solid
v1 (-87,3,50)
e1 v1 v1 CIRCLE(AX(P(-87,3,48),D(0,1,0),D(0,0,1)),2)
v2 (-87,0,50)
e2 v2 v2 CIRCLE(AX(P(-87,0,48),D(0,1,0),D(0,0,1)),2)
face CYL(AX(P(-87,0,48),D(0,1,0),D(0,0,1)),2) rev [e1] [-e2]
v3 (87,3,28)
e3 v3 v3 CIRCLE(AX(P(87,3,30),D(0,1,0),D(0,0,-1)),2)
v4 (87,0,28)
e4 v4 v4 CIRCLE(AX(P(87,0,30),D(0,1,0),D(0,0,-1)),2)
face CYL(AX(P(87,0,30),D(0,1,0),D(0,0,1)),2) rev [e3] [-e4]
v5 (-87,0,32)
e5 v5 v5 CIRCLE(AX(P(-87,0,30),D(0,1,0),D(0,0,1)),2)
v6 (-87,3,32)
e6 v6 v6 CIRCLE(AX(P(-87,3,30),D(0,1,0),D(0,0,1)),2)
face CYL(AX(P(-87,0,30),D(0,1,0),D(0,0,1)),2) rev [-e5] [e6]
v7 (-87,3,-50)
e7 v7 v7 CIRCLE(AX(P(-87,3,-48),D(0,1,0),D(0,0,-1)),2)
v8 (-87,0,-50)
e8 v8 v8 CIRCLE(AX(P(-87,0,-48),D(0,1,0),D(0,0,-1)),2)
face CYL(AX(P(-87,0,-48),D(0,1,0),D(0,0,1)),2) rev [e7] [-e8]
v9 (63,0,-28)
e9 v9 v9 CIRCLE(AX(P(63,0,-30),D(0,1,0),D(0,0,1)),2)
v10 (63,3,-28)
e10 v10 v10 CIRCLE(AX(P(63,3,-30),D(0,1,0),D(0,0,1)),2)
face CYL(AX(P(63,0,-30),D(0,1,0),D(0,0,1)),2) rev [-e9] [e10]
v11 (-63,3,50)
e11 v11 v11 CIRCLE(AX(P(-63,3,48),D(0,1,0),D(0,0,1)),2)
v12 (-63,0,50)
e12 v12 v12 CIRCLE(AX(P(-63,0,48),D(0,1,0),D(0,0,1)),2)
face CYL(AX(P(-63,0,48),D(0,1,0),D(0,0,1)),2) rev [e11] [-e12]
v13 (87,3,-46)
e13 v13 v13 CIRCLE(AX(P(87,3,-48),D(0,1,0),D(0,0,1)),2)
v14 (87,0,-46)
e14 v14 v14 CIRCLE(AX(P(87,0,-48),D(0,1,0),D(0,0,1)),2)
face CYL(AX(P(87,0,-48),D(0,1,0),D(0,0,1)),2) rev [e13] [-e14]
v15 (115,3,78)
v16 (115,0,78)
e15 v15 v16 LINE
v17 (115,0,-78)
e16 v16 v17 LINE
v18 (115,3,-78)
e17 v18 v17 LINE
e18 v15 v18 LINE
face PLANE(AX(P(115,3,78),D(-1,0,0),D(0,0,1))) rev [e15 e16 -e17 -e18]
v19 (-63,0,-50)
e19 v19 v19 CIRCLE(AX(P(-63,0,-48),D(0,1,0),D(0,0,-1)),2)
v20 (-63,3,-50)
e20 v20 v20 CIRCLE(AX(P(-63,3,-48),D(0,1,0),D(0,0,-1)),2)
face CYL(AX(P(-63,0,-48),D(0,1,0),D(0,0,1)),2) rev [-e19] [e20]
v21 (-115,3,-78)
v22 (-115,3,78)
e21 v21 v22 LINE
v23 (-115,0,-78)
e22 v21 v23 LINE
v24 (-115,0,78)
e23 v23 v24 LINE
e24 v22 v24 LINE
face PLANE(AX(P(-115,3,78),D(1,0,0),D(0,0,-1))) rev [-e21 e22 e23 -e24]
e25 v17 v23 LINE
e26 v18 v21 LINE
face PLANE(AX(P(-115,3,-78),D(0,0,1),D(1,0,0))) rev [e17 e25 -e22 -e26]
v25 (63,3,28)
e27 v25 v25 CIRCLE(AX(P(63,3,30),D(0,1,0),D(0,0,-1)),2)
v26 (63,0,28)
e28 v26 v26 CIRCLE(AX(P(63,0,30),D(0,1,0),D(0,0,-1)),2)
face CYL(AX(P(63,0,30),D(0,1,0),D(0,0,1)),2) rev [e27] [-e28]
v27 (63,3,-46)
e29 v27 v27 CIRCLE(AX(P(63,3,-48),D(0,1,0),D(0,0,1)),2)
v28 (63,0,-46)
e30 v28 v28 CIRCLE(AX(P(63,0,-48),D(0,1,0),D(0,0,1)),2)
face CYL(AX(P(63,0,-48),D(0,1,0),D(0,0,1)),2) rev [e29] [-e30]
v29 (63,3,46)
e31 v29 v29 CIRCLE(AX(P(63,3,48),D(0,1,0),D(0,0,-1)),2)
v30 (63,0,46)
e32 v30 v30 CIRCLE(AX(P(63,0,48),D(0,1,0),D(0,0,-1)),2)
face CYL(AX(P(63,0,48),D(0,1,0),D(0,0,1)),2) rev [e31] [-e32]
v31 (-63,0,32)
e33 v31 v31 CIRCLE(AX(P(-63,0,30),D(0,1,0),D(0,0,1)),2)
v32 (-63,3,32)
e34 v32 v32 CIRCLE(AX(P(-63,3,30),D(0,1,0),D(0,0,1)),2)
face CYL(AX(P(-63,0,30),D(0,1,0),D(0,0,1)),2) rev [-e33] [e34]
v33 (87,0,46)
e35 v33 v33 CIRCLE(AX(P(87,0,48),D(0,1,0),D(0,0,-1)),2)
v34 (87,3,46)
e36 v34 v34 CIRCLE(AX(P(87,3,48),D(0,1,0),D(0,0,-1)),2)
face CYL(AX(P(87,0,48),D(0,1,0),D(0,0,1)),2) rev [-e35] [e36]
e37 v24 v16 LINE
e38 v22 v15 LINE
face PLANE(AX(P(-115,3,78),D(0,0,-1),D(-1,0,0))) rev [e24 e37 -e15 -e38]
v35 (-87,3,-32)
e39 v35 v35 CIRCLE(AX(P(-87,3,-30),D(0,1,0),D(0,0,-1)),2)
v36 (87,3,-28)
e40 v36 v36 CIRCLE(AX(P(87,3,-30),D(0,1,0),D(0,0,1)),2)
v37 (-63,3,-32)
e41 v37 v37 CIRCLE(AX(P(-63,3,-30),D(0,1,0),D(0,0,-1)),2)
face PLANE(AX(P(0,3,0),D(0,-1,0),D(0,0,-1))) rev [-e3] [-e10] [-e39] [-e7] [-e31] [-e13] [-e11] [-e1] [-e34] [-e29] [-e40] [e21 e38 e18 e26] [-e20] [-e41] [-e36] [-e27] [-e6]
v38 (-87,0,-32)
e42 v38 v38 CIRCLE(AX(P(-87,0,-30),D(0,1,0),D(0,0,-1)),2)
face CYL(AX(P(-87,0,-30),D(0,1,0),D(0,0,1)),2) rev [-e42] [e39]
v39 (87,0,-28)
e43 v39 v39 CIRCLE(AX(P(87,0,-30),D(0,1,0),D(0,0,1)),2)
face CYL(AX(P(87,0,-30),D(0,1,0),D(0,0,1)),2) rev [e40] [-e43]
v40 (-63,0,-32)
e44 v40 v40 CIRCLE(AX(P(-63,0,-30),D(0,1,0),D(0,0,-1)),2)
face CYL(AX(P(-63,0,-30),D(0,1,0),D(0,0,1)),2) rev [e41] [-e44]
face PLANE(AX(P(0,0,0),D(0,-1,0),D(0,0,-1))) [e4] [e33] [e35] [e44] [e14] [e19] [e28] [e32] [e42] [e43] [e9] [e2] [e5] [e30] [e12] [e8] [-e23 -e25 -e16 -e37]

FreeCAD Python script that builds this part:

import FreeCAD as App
import Part
import Sketcher
from FreeCAD import Vector
Q = App.Units.Quantity

doc = App.newDocument("Part")
body = doc.addObject("PartDesign::Body", "Body")

sketch1 = doc.addObject("Sketcher::SketchObject", "Sketch")
body.addObject(sketch1)
sketch1.AttachmentSupport = (doc.XZ_Plane, [""])
sketch1.MapMode = "FlatFace"
sketch1.addGeometry([
    Part.LineSegment(Vector(-115, -78, 0), Vector(-115, 78, 0)),
    Part.LineSegment(Vector(-115, 78, 0), Vector(115, 78, 0)),
    Part.LineSegment(Vector(115, 78, 0), Vector(115, -78, 0)),
    Part.LineSegment(Vector(115, -78, 0), Vector(-115, -78, 0)),
], False)
sketch1.addConstraint([
    Sketcher.Constraint("Coincident", 0, 2, 1, 1),
    Sketcher.Constraint("Coincident", 1, 2, 2, 1),
    Sketcher.Constraint("Coincident", 2, 2, 3, 1),
    Sketcher.Constraint("Coincident", 3, 2, 0, 1),
    Sketcher.Constraint("Vertical", 0),
    Sketcher.Constraint("Horizontal", 1),
    Sketcher.Constraint("Vertical", 2),
    Sketcher.Constraint("Horizontal", 3),
    Sketcher.Constraint("Symmetric", 0, 2, 2, 2, -1, 1),
    Sketcher.Constraint("DistanceX", 1, 1, 1, 2, Q("230 mm")),
    Sketcher.Constraint("DistanceY", 0, 1, 0, 2, Q("156 mm")),
])
pad1 = doc.addObject("PartDesign::Pad", "Pad")
body.addObject(pad1)
pad1.Profile = sketch1
pad1.Length = 3
pad1.Reversed = True

sketch2 = doc.addObject("Sketcher::SketchObject", "Sketch001")
body.addObject(sketch2)
sketch2.AttachmentSupport = (doc.XZ_Plane, [""])
sketch2.MapMode = "FlatFace"
sketch2.AttachmentOffset = App.Placement(Vector(0, 0, -3), App.Rotation())
sketch2.addGeometry([
    Part.Circle(Vector(63, -48, 0), Vector(0, 0, 1), 2),
    Part.Circle(Vector(87, -48, 0), Vector(0, 0, 1), 2),
    Part.Circle(Vector(87, -30, 0), Vector(0, 0, 1), 2),
    Part.Circle(Vector(63, -30, 0), Vector(0, 0, 1), 2),
    Part.Circle(Vector(-63, -30, 0), Vector(0, 0, 1), 2),
    Part.Circle(Vector(-87, -30, 0), Vector(0, 0, 1), 2),
    Part.Circle(Vector(-87, -48, 0), Vector(0, 0, 1), 2),
    Part.Circle(Vector(-63, -48, 0), Vector(0, 0, 1), 2),
    Part.Circle(Vector(-63, 48, 0), Vector(0, 0, 1), 2),
    Part.Circle(Vector(-87, 48, 0), Vector(0, 0, 1), 2),
    Part.Circle(Vector(-87, 30, 0), Vector(0, 0, 1), 2),
    Part.Circle(Vector(-63, 30, 0), Vector(0, 0, 1), 2),
    Part.Circle(Vector(63, 30, 0), Vector(0, 0, 1), 2),
    Part.Circle(Vector(87, 30, 0), Vector(0, 0, 1), 2),
    Part.Circle(Vector(87, 48, 0), Vector(0, 0, 1), 2),
    Part.Circle(Vector(63, 48, 0), Vector(0, 0, 1), 2),
], False)
sketch2.addConstraint([
    Sketcher.Constraint("Equal", 0, 1),
    Sketcher.Constraint("Equal", 1, 2),
    Sketcher.Constraint("Equal", 2, 3),
    Sketcher.Constraint("Equal", 3, 4),
    Sketcher.Constraint("Equal", 4, 5),
    Sketcher.Constraint("Equal", 5, 6),
    Sketcher.Constraint("Equal", 6, 7),
    Sketcher.Constraint("Equal", 7, 8),
    Sketcher.Constraint("Equal", 8, 9),
    Sketcher.Constraint("Equal", 9, 10),
    Sketcher.Constraint("Equal", 10, 11),
    Sketcher.Constraint("Equal", 11, 12),
    Sketcher.Constraint("Equal", 12, 13),
    Sketcher.Constraint("Equal", 13, 14),
    Sketcher.Constraint("Equal", 14, 15),
    Sketcher.Constraint("Symmetric", 0, 3, 8, 3, -1, 1),
    Sketcher.Constraint("Symmetric", 1, 3, 9, 3, -1, 1),
    Sketcher.Constraint("Symmetric", 2, 3, 10, 3, -1, 1),
    Sketcher.Constraint("Symmetric", 3, 3, 11, 3, -1, 1),
    Sketcher.Constraint("Symmetric", 4, 3, 12, 3, -1, 1),
    Sketcher.Constraint("Symmetric", 5, 3, 13, 3, -1, 1),
    Sketcher.Constraint("Symmetric", 6, 3, 14, 3, -1, 1),
    Sketcher.Constraint("Symmetric", 7, 3, 15, 3, -1, 1),
    Sketcher.Constraint("Symmetric", 3, 3, 4, 3, -2),
    Sketcher.Constraint("Symmetric", 2, 3, 5, 3, -2),
    Sketcher.Constraint("Symmetric", 1, 3, 6, 3, -2),
    Sketcher.Constraint("Symmetric", 0, 3, 7, 3, -2),
    Sketcher.Constraint("Horizontal", 0, 3, 1, 3),
    Sketcher.Constraint("Horizontal", 2, 3, 3, 3),
    Sketcher.Constraint("Vertical", 1, 3, 2, 3),
    Sketcher.Constraint("Vertical", 0, 3, 3, 3),
    Sketcher.Constraint("Diameter", 0, Q("4 mm")),
    Sketcher.Constraint("DistanceX", -1, 1, 0, 3, Q("63 mm")),
    Sketcher.Constraint("DistanceY", 0, 3, -1, 1, Q("48 mm")),
    Sketcher.Constraint("DistanceX", -1, 1, 1, 3, Q("87 mm")),
    Sketcher.Constraint("DistanceY", 2, 3, -1, 1, Q("30 mm")),
])
pocket1 = doc.addObject("PartDesign::Pocket", "Pocket")
body.addObject(pocket1)
pocket1.Profile = sketch2
pocket1.Type = "ThroughAll"
pocket1.Reversed = True

doc.recompute()
